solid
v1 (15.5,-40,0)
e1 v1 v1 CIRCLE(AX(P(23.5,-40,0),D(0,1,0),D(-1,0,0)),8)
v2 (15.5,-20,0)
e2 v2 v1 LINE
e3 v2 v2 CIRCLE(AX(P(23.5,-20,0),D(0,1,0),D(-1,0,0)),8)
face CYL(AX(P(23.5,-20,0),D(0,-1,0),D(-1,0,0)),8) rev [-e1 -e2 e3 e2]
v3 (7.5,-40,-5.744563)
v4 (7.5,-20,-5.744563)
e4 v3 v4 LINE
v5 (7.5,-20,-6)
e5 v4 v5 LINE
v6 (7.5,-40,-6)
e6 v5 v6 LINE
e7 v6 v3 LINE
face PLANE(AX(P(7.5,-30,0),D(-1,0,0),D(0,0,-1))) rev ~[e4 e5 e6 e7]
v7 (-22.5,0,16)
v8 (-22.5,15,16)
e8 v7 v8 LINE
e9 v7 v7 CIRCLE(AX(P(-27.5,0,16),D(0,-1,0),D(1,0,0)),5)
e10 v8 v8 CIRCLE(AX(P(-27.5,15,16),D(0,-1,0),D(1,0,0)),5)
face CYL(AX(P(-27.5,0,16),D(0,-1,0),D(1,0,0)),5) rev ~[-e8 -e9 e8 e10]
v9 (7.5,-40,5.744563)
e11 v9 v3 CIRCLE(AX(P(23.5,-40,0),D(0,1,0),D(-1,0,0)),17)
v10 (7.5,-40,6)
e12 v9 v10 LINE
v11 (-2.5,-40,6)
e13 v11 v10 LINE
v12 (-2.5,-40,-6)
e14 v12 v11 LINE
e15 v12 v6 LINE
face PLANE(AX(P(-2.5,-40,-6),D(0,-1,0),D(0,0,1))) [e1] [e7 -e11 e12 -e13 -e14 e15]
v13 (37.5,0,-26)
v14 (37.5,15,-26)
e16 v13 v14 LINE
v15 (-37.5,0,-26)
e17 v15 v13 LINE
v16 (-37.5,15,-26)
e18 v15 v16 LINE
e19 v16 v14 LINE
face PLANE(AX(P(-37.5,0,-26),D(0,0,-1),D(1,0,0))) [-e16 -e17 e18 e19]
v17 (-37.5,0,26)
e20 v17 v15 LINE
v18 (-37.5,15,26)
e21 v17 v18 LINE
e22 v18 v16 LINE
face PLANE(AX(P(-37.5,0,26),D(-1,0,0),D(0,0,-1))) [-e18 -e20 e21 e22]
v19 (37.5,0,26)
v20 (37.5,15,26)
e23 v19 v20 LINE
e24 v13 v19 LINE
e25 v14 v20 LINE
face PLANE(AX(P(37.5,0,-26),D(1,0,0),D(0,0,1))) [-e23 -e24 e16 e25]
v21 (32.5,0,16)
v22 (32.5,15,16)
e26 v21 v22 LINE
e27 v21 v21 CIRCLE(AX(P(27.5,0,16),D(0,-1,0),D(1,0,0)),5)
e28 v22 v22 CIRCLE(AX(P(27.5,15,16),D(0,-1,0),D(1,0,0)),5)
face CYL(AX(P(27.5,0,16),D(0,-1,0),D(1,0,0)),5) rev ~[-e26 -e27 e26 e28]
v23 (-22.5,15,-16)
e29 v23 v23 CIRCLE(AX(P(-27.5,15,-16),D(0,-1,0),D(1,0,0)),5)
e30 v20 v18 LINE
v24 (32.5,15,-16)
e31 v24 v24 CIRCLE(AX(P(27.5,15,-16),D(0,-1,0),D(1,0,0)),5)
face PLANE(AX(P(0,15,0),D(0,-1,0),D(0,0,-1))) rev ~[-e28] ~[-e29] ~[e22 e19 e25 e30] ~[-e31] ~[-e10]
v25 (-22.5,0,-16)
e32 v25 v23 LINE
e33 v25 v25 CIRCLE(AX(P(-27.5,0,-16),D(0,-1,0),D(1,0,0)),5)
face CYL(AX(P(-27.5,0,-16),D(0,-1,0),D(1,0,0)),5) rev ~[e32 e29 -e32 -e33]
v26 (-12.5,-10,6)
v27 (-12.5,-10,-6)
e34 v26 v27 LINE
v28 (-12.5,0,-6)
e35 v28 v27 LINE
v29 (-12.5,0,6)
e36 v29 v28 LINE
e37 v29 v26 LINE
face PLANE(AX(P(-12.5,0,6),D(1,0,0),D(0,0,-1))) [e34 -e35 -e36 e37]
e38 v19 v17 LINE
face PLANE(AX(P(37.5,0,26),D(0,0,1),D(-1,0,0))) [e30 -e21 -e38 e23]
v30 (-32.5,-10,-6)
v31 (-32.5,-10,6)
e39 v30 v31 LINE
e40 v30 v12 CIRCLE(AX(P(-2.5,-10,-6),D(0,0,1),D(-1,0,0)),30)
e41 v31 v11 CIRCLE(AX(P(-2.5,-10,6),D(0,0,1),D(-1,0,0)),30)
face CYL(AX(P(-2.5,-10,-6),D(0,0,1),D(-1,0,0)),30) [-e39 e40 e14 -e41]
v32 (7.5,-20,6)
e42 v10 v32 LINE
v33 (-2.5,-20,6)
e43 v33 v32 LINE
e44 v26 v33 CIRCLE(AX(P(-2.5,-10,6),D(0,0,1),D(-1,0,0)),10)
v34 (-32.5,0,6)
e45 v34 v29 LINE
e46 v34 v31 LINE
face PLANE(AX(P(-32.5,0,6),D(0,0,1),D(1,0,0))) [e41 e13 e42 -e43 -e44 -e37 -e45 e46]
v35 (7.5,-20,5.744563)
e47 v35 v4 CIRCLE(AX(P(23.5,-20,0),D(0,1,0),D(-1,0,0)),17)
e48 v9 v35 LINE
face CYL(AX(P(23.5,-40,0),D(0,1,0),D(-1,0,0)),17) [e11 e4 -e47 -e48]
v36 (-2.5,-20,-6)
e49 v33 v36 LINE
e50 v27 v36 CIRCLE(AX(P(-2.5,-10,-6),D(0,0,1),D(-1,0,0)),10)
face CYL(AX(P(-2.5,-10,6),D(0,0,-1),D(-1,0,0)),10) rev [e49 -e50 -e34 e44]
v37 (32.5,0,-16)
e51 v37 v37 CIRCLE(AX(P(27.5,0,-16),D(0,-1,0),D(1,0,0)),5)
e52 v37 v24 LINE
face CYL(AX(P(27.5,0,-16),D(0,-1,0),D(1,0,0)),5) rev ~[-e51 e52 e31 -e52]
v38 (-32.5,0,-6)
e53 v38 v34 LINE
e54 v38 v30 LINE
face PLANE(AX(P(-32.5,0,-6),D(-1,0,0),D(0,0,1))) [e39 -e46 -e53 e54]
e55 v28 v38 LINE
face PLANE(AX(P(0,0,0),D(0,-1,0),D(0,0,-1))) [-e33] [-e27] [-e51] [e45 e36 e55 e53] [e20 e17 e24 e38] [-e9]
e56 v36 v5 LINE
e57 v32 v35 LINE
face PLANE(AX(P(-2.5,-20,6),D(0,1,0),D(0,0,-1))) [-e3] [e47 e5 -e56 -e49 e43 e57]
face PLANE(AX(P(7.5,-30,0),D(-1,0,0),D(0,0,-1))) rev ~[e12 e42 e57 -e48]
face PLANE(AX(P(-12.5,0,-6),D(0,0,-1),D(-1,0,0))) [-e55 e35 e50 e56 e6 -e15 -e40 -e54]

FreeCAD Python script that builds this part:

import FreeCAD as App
import Part
import Sketcher
Q = App.Units.Quantity

doc = App.newDocument("Part")
body = doc.addObject("PartDesign::Body", "Body")

# Sketch on XZ plane
sketch1 = doc.addObject("Sketcher::SketchObject", "Sketch")
body.addObject(sketch1)
sketch1.AttachmentSupport = (doc.XZ_Plane, [""])
sketch1.MapMode = "FlatFace"
sketch1.addGeometry([
    Part.LineSegment(App.Vector(38, -26, 0), App.Vector(38, 26, 0)),
    Part.LineSegment(App.Vector(38, 26, 0), App.Vector(-38, 26, 0)),
    Part.LineSegment(App.Vector(-38, 26, 0), App.Vector(-38, -26, 0)),
    Part.LineSegment(App.Vector(-38, -26, 0), App.Vector(38, -26, 0)),
], False)
sketch1.addConstraint([
    Sketcher.Constraint("Coincident", 0, 2, 1, 1),
    Sketcher.Constraint("Coincident", 1, 2, 2, 1),
    Sketcher.Constraint("Coincident", 2, 2, 3, 1),
    Sketcher.Constraint("Coincident", 3, 2, 0, 1),
    Sketcher.Constraint("Vertical", 0),
    Sketcher.Constraint("Horizontal", 1),
    Sketcher.Constraint("Vertical", 2),
    Sketcher.Constraint("Horizontal", 3),
    Sketcher.Constraint("Symmetric", 0, 2, 2, 2, -1, 1),
    Sketcher.Constraint("DistanceX", 1, 2, 1, 1, Q("75 mm")),
    Sketcher.Constraint("DistanceY", 0, 1, 0, 2, Q("52 mm")),
])
pad1 = doc.addObject("PartDesign::Pad", "Pad")
body.addObject(pad1)
pad1.Profile = sketch1
pad1.Length = 15
pad1.Reversed = True

# Sketch on XZ plane
sketch2 = doc.addObject("Sketcher::SketchObject", "Sketch001")
body.addObject(sketch2)
sketch2.AttachmentSupport = (doc.XZ_Plane, [""])
sketch2.MapMode = "FlatFace"
sketch2.addGeometry([
    Part.Circle(App.Vector(-28, 16, 0), App.Vector(0, 0, 1), 5),
    Part.Circle(App.Vector(28, 16, 0), App.Vector(0, 0, 1), 5),
    Part.Circle(App.Vector(28, -16, 0), App.Vector(0, 0, 1), 5),
    Part.Circle(App.Vector(-28, -16, 0), App.Vector(0, 0, 1), 5),
], False)
sketch2.addConstraint([
    Sketcher.Constraint("Equal", 0, 1),
    Sketcher.Constraint("Equal", 1, 2),
    Sketcher.Constraint("Equal", 2, 3),
    Sketcher.Constraint("Symmetric", 0, 3, 2, 3, -1, 1),
    Sketcher.Constraint("Symmetric", 1, 3, 3, 3, -1, 1),
    Sketcher.Constraint("Symmetric", 0, 3, 1, 3, -2),
    Sketcher.Constraint("Diameter", 0, Q("10 mm")),
    Sketcher.Constraint("DistanceY", -1, 1, 0, 3, Q("16 mm")),
    Sketcher.Constraint("DistanceX", 0, 3, 1, 3, Q("55 mm")),
])
pocket1 = doc.addObject("PartDesign::Pocket", "Pocket")
body.addObject(pocket1)
pocket1.Profile = sketch2
pocket1.Type = "UpToFirst"

# Sketch on XZ plane
sketch3 = doc.addObject("Sketcher::SketchObject", "Sketch002")
body.addObject(sketch3)
sketch3.AttachmentSupport = (doc.XZ_Plane, [""])
sketch3.MapMode = "FlatFace"
sketch3.addGeometry([
    Part.LineSegment(App.Vector(-12, 6, 0), App.Vector(-32, 6, 0)),
    Part.LineSegment(App.Vector(-32, 6, 0), App.Vector(-32, -6, 0)),
    Part.LineSegment(App.Vector(-32, -6, 0), App.Vector(-12, -6, 0)),
    Part.LineSegment(App.Vector(-12, -6, 0), App.Vector(-12, 6, 0)),
], False)
sketch3.addConstraint([
    Sketcher.Constraint("Coincident", 0, 2, 1, 1),
    Sketcher.Constraint("Coincident", 1, 2, 2, 1),
    Sketcher.Constraint("Coincident", 2, 2, 3, 1),
    Sketcher.Constraint("Coincident", 3, 2, 0, 1),
    Sketcher.Constraint("Horizontal", 0),
    Sketcher.Constraint("Vertical", 1),
    Sketcher.Constraint("Horizontal", 2),
    Sketcher.Constraint("Vertical", 3),
    Sketcher.Constraint("DistanceX", 0, 2, 0, 1, Q("20 mm")),
    Sketcher.Constraint("DistanceY", 1, 2, 1, 1, Q("12 mm")),
    Sketcher.Constraint("DistanceY", -1, 1, 0, 2, Q("6 mm")),
    Sketcher.Constraint("DistanceX", 0, 2, -1, 1, Q("32.5 mm")),
])
pad2 = doc.addObject("PartDesign::Pad", "Pad001")
body.addObject(pad2)
pad2.Profile = sketch3
pad2.Length = 10

# Sketch on XZ plane
sketch4 = doc.addObject("Sketcher::SketchObject", "Sketch003")
body.addObject(sketch4)
sketch4.AttachmentSupport = (doc.XZ_Plane, [""])
sketch4.MapMode = "FlatFace"
sketch4.AttachmentOffset = App.Placement(App.Vector(0, 0, 10), App.Rotation())
sketch4.addGeometry([
    Part.LineSegment(App.Vector(-12, 6, 0), App.Vector(-32, 6, 0)),
    Part.LineSegment(App.Vector(-32, 6, 0), App.Vector(-32, -6, 0)),
    Part.LineSegment(App.Vector(-32, -6, 0), App.Vector(-12, -6, 0)),
    Part.LineSegment(App.Vector(-12, -6, 0), App.Vector(-12, 6, 0)),
], False)
sketch4.addGeometry(Part.LineSegment(App.Vector(-2, -6, 0), App.Vector(-2, 6, 0)), True)  # axis
sketch4.addConstraint([
    Sketcher.Constraint("Coincident", 0, 2, 1, 1),
    Sketcher.Constraint("Coincident", 1, 2, 2, 1),
    Sketcher.Constraint("Coincident", 2, 2, 3, 1),
    Sketcher.Constraint("Coincident", 3, 2, 0, 1),
    Sketcher.Constraint("Horizontal", 0),
    Sketcher.Constraint("Vertical", 1),
    Sketcher.Constraint("Horizontal", 2),
    Sketcher.Constraint("Vertical", 3),
    Sketcher.Constraint("Vertical", 4),
    Sketcher.Constraint("Horizontal", 2, 2, 4, 1),
    Sketcher.Constraint("Horizontal", 3, 2, 4, 2),
    Sketcher.Constraint("DistanceX", 0, 2, 0, 1, Q("20 mm")),
    Sketcher.Constraint("DistanceY", 1, 2, 1, 1, Q("12 mm")),
    Sketcher.Constraint("DistanceY", -1, 1, 0, 2, Q("6 mm")),
    Sketcher.Constraint("DistanceX", 2, 2, 4, 1, Q("10 mm")),
    Sketcher.Constraint("DistanceX", 0, 2, -1, 1, Q("32.5 mm")),
])
revolution = doc.addObject("PartDesign::Revolution", "Revolution")
body.addObject(revolution)
revolution.Profile = sketch4
revolution.ReferenceAxis = (sketch4, ["Axis0"])
revolution.Angle = 90

# Sketch on YZ plane
sketch5 = doc.addObject("Sketcher::SketchObject", "Sketch004")
body.addObject(sketch5)
sketch5.AttachmentSupport = (doc.YZ_Plane, [""])
sketch5.MapMode = "FlatFace"
sketch5.AttachmentOffset = App.Placement(App.Vector(0, 0, -2.5), App.Rotation())
sketch5.addGeometry([
    Part.LineSegment(App.Vector(-40, 6, 0), App.Vector(-40, -6, 0)),
    Part.LineSegment(App.Vector(-40, -6, 0), App.Vector(-20, -6, 0)),
    Part.LineSegment(App.Vector(-20, -6, 0), App.Vector(-20, 6, 0)),
    Part.LineSegment(App.Vector(-20, 6, 0), App.Vector(-40, 6, 0)),
], False)
sketch5.addConstraint([
    Sketcher.Constraint("Coincident", 0, 2, 1, 1),
    Sketcher.Constraint("Coincident", 1, 2, 2, 1),
    Sketcher.Constraint("Coincident", 2, 2, 3, 1),
    Sketcher.Constraint("Coincident", 3, 2, 0, 1),
    Sketcher.Constraint("Vertical", 0),
    Sketcher.Constraint("Horizontal", 1),
    Sketcher.Constraint("Vertical", 2),
    Sketcher.Constraint("Horizontal", 3),
    Sketcher.Constraint("DistanceX", 1, 1, 1, 2, Q("20 mm")),
    Sketcher.Constraint("DistanceY", 0, 2, 0, 1, Q("12 mm")),
    Sketcher.Constraint("DistanceX", 0, 2, -1, 1, Q("40 mm")),
    Sketcher.Constraint("DistanceY", 0, 2, -1, 1, Q("6 mm")),
])
pad3 = doc.addObject("PartDesign::Pad", "Pad002")
body.addObject(pad3)
pad3.Profile = sketch5
pad3.Length = 10

# Sketch on XY plane
sketch6 = doc.addObject("Sketcher::SketchObject", "Sketch005")
body.addObject(sketch6)
sketch6.AttachmentSupport = (doc.XY_Plane, [""])
sketch6.MapMode = "FlatFace"
sketch6.addGeometry([
    Part.LineSegment(App.Vector(16, -20, 0), App.Vector(16, -40, 0)),
    Part.LineSegment(App.Vector(16, -40, 0), App.Vector(6, -40, 0)),
    Part.LineSegment(App.Vector(6, -40, 0), App.Vector(6, -20, 0)),
    Part.LineSegment(App.Vector(6, -20, 0), App.Vector(16, -20, 0)),
], False)
sketch6.addGeometry(Part.LineSegment(App.Vector(24, -40, 0), App.Vector(24, -20, 0)), True)  # axis
sketch6.addConstraint([
    Sketcher.Constraint("Coincident", 0, 2, 1, 1),
    Sketcher.Constraint("Coincident", 1, 2, 2, 1),
    Sketcher.Constraint("Coincident", 2, 2, 3, 1),
    Sketcher.Constraint("Coincident", 3, 2, 0, 1),
    Sketcher.Constraint("Vertical", 0),
    Sketcher.Constraint("Horizontal", 1),
    Sketcher.Constraint("Vertical", 2),
    Sketcher.Constraint("Horizontal", 3),
    Sketcher.Constraint("Vertical", 4),
    Sketcher.Constraint("Horizontal", 1, 2, 4, 1),
    Sketcher.Constraint("Horizontal", 3, 2, 4, 2),
    Sketcher.Constraint("DistanceX", 1, 2, 1, 1, Q("9 mm")),
    Sketcher.Constraint("DistanceY", 0, 2, 0, 1, Q("20 mm")),
    Sketcher.Constraint("DistanceY", 0, 2, -1, 1, Q("40 mm")),
    Sketcher.Constraint("DistanceX", 0, 2, 4, 1, Q("8 mm")),
    Sketcher.Constraint("DistanceX", -1, 1, 0, 2, Q("15.5 mm")),
])
revolution2 = doc.addObject("PartDesign::Revolution", "Revolution001")
body.addObject(revolution2)
revolution2.Profile = sketch6
revolution2.ReferenceAxis = (sketch6, ["Axis0"])
revolution2.Angle = 360

doc.recompute()
